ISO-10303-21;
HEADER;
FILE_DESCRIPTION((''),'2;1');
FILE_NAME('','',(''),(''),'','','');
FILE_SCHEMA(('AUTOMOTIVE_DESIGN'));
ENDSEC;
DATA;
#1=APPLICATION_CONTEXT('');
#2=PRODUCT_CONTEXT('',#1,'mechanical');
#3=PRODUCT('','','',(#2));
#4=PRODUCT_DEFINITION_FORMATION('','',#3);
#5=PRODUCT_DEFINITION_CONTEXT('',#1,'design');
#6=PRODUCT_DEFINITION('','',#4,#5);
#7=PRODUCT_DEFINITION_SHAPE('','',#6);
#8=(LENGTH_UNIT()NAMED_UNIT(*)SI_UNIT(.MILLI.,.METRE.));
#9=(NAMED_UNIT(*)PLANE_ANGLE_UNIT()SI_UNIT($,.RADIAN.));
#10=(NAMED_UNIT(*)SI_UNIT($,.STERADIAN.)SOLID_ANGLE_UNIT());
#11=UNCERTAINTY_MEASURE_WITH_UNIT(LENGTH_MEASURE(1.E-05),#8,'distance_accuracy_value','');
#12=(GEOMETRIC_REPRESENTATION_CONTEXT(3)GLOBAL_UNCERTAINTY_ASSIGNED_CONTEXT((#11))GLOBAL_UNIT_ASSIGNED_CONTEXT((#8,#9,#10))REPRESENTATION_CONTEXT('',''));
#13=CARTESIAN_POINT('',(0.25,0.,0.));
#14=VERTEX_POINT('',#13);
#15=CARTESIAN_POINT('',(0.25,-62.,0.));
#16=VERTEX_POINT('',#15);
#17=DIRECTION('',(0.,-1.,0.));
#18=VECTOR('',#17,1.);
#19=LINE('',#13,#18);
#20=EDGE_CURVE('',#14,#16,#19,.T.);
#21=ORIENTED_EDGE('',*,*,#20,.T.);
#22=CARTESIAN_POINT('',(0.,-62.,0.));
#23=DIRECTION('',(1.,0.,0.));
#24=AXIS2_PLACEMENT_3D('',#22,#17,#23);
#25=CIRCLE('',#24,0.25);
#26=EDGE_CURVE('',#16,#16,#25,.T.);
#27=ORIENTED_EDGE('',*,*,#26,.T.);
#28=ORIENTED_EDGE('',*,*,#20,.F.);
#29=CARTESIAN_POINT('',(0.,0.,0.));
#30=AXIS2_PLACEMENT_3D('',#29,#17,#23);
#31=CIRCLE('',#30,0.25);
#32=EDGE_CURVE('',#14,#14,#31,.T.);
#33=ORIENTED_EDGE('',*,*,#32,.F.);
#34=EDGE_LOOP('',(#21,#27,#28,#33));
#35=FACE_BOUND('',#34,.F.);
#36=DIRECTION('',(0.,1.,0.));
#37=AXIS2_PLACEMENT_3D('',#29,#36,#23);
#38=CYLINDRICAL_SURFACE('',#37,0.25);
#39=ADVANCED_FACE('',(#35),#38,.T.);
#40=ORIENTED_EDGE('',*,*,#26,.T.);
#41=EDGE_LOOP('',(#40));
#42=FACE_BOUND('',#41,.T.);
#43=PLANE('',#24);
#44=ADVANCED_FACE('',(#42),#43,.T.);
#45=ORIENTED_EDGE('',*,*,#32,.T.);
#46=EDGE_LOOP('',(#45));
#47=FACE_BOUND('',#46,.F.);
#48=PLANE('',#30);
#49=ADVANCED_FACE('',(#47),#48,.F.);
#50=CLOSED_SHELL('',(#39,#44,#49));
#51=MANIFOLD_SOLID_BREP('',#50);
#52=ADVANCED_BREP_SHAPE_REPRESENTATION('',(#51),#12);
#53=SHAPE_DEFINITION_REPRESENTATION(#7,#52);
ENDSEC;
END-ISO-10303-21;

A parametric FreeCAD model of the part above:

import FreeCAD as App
import Part
import Sketcher
from FreeCAD import Vector

doc = App.newDocument("Part")
params = doc.addObject("Spreadsheet::Sheet", "Params")
for row, (alias, value) in enumerate([
    ("sketch1_diameter", "0.5 mm"),
    ("pad1_length", "62 mm"),
], start=1):
    params.set(f"A{row}", alias)
    params.set(f"B{row}", "=" + value)
    params.setAlias(f"B{row}", alias)

body = doc.addObject("PartDesign::Body", "Body")

# Sketch on XZ plane
sketch1 = body.newObject("Sketcher::SketchObject", "Sketch")
sketch1.AttachmentSupport = (doc.getObject("XZ_Plane"), [""])
sketch1.MapMode = "FlatFace"
sketch1.addGeometry(Part.Circle(Vector(0, 0, 0), Vector(0, 0, 1), 0.25), False)
sketch1.addConstraint(Sketcher.Constraint("Coincident", 0, 3, -1, 1))
sketch1.addConstraint(Sketcher.Constraint("Diameter", 0, 0.5))
sketch1.setExpression("Constraints[1]", "Params.sketch1_diameter")
pad1 = body.newObject("PartDesign::Pad", "Pad")
pad1.Profile = sketch1
pad1.setExpression("Length", "Params.pad1_length")

doc.recompute()
